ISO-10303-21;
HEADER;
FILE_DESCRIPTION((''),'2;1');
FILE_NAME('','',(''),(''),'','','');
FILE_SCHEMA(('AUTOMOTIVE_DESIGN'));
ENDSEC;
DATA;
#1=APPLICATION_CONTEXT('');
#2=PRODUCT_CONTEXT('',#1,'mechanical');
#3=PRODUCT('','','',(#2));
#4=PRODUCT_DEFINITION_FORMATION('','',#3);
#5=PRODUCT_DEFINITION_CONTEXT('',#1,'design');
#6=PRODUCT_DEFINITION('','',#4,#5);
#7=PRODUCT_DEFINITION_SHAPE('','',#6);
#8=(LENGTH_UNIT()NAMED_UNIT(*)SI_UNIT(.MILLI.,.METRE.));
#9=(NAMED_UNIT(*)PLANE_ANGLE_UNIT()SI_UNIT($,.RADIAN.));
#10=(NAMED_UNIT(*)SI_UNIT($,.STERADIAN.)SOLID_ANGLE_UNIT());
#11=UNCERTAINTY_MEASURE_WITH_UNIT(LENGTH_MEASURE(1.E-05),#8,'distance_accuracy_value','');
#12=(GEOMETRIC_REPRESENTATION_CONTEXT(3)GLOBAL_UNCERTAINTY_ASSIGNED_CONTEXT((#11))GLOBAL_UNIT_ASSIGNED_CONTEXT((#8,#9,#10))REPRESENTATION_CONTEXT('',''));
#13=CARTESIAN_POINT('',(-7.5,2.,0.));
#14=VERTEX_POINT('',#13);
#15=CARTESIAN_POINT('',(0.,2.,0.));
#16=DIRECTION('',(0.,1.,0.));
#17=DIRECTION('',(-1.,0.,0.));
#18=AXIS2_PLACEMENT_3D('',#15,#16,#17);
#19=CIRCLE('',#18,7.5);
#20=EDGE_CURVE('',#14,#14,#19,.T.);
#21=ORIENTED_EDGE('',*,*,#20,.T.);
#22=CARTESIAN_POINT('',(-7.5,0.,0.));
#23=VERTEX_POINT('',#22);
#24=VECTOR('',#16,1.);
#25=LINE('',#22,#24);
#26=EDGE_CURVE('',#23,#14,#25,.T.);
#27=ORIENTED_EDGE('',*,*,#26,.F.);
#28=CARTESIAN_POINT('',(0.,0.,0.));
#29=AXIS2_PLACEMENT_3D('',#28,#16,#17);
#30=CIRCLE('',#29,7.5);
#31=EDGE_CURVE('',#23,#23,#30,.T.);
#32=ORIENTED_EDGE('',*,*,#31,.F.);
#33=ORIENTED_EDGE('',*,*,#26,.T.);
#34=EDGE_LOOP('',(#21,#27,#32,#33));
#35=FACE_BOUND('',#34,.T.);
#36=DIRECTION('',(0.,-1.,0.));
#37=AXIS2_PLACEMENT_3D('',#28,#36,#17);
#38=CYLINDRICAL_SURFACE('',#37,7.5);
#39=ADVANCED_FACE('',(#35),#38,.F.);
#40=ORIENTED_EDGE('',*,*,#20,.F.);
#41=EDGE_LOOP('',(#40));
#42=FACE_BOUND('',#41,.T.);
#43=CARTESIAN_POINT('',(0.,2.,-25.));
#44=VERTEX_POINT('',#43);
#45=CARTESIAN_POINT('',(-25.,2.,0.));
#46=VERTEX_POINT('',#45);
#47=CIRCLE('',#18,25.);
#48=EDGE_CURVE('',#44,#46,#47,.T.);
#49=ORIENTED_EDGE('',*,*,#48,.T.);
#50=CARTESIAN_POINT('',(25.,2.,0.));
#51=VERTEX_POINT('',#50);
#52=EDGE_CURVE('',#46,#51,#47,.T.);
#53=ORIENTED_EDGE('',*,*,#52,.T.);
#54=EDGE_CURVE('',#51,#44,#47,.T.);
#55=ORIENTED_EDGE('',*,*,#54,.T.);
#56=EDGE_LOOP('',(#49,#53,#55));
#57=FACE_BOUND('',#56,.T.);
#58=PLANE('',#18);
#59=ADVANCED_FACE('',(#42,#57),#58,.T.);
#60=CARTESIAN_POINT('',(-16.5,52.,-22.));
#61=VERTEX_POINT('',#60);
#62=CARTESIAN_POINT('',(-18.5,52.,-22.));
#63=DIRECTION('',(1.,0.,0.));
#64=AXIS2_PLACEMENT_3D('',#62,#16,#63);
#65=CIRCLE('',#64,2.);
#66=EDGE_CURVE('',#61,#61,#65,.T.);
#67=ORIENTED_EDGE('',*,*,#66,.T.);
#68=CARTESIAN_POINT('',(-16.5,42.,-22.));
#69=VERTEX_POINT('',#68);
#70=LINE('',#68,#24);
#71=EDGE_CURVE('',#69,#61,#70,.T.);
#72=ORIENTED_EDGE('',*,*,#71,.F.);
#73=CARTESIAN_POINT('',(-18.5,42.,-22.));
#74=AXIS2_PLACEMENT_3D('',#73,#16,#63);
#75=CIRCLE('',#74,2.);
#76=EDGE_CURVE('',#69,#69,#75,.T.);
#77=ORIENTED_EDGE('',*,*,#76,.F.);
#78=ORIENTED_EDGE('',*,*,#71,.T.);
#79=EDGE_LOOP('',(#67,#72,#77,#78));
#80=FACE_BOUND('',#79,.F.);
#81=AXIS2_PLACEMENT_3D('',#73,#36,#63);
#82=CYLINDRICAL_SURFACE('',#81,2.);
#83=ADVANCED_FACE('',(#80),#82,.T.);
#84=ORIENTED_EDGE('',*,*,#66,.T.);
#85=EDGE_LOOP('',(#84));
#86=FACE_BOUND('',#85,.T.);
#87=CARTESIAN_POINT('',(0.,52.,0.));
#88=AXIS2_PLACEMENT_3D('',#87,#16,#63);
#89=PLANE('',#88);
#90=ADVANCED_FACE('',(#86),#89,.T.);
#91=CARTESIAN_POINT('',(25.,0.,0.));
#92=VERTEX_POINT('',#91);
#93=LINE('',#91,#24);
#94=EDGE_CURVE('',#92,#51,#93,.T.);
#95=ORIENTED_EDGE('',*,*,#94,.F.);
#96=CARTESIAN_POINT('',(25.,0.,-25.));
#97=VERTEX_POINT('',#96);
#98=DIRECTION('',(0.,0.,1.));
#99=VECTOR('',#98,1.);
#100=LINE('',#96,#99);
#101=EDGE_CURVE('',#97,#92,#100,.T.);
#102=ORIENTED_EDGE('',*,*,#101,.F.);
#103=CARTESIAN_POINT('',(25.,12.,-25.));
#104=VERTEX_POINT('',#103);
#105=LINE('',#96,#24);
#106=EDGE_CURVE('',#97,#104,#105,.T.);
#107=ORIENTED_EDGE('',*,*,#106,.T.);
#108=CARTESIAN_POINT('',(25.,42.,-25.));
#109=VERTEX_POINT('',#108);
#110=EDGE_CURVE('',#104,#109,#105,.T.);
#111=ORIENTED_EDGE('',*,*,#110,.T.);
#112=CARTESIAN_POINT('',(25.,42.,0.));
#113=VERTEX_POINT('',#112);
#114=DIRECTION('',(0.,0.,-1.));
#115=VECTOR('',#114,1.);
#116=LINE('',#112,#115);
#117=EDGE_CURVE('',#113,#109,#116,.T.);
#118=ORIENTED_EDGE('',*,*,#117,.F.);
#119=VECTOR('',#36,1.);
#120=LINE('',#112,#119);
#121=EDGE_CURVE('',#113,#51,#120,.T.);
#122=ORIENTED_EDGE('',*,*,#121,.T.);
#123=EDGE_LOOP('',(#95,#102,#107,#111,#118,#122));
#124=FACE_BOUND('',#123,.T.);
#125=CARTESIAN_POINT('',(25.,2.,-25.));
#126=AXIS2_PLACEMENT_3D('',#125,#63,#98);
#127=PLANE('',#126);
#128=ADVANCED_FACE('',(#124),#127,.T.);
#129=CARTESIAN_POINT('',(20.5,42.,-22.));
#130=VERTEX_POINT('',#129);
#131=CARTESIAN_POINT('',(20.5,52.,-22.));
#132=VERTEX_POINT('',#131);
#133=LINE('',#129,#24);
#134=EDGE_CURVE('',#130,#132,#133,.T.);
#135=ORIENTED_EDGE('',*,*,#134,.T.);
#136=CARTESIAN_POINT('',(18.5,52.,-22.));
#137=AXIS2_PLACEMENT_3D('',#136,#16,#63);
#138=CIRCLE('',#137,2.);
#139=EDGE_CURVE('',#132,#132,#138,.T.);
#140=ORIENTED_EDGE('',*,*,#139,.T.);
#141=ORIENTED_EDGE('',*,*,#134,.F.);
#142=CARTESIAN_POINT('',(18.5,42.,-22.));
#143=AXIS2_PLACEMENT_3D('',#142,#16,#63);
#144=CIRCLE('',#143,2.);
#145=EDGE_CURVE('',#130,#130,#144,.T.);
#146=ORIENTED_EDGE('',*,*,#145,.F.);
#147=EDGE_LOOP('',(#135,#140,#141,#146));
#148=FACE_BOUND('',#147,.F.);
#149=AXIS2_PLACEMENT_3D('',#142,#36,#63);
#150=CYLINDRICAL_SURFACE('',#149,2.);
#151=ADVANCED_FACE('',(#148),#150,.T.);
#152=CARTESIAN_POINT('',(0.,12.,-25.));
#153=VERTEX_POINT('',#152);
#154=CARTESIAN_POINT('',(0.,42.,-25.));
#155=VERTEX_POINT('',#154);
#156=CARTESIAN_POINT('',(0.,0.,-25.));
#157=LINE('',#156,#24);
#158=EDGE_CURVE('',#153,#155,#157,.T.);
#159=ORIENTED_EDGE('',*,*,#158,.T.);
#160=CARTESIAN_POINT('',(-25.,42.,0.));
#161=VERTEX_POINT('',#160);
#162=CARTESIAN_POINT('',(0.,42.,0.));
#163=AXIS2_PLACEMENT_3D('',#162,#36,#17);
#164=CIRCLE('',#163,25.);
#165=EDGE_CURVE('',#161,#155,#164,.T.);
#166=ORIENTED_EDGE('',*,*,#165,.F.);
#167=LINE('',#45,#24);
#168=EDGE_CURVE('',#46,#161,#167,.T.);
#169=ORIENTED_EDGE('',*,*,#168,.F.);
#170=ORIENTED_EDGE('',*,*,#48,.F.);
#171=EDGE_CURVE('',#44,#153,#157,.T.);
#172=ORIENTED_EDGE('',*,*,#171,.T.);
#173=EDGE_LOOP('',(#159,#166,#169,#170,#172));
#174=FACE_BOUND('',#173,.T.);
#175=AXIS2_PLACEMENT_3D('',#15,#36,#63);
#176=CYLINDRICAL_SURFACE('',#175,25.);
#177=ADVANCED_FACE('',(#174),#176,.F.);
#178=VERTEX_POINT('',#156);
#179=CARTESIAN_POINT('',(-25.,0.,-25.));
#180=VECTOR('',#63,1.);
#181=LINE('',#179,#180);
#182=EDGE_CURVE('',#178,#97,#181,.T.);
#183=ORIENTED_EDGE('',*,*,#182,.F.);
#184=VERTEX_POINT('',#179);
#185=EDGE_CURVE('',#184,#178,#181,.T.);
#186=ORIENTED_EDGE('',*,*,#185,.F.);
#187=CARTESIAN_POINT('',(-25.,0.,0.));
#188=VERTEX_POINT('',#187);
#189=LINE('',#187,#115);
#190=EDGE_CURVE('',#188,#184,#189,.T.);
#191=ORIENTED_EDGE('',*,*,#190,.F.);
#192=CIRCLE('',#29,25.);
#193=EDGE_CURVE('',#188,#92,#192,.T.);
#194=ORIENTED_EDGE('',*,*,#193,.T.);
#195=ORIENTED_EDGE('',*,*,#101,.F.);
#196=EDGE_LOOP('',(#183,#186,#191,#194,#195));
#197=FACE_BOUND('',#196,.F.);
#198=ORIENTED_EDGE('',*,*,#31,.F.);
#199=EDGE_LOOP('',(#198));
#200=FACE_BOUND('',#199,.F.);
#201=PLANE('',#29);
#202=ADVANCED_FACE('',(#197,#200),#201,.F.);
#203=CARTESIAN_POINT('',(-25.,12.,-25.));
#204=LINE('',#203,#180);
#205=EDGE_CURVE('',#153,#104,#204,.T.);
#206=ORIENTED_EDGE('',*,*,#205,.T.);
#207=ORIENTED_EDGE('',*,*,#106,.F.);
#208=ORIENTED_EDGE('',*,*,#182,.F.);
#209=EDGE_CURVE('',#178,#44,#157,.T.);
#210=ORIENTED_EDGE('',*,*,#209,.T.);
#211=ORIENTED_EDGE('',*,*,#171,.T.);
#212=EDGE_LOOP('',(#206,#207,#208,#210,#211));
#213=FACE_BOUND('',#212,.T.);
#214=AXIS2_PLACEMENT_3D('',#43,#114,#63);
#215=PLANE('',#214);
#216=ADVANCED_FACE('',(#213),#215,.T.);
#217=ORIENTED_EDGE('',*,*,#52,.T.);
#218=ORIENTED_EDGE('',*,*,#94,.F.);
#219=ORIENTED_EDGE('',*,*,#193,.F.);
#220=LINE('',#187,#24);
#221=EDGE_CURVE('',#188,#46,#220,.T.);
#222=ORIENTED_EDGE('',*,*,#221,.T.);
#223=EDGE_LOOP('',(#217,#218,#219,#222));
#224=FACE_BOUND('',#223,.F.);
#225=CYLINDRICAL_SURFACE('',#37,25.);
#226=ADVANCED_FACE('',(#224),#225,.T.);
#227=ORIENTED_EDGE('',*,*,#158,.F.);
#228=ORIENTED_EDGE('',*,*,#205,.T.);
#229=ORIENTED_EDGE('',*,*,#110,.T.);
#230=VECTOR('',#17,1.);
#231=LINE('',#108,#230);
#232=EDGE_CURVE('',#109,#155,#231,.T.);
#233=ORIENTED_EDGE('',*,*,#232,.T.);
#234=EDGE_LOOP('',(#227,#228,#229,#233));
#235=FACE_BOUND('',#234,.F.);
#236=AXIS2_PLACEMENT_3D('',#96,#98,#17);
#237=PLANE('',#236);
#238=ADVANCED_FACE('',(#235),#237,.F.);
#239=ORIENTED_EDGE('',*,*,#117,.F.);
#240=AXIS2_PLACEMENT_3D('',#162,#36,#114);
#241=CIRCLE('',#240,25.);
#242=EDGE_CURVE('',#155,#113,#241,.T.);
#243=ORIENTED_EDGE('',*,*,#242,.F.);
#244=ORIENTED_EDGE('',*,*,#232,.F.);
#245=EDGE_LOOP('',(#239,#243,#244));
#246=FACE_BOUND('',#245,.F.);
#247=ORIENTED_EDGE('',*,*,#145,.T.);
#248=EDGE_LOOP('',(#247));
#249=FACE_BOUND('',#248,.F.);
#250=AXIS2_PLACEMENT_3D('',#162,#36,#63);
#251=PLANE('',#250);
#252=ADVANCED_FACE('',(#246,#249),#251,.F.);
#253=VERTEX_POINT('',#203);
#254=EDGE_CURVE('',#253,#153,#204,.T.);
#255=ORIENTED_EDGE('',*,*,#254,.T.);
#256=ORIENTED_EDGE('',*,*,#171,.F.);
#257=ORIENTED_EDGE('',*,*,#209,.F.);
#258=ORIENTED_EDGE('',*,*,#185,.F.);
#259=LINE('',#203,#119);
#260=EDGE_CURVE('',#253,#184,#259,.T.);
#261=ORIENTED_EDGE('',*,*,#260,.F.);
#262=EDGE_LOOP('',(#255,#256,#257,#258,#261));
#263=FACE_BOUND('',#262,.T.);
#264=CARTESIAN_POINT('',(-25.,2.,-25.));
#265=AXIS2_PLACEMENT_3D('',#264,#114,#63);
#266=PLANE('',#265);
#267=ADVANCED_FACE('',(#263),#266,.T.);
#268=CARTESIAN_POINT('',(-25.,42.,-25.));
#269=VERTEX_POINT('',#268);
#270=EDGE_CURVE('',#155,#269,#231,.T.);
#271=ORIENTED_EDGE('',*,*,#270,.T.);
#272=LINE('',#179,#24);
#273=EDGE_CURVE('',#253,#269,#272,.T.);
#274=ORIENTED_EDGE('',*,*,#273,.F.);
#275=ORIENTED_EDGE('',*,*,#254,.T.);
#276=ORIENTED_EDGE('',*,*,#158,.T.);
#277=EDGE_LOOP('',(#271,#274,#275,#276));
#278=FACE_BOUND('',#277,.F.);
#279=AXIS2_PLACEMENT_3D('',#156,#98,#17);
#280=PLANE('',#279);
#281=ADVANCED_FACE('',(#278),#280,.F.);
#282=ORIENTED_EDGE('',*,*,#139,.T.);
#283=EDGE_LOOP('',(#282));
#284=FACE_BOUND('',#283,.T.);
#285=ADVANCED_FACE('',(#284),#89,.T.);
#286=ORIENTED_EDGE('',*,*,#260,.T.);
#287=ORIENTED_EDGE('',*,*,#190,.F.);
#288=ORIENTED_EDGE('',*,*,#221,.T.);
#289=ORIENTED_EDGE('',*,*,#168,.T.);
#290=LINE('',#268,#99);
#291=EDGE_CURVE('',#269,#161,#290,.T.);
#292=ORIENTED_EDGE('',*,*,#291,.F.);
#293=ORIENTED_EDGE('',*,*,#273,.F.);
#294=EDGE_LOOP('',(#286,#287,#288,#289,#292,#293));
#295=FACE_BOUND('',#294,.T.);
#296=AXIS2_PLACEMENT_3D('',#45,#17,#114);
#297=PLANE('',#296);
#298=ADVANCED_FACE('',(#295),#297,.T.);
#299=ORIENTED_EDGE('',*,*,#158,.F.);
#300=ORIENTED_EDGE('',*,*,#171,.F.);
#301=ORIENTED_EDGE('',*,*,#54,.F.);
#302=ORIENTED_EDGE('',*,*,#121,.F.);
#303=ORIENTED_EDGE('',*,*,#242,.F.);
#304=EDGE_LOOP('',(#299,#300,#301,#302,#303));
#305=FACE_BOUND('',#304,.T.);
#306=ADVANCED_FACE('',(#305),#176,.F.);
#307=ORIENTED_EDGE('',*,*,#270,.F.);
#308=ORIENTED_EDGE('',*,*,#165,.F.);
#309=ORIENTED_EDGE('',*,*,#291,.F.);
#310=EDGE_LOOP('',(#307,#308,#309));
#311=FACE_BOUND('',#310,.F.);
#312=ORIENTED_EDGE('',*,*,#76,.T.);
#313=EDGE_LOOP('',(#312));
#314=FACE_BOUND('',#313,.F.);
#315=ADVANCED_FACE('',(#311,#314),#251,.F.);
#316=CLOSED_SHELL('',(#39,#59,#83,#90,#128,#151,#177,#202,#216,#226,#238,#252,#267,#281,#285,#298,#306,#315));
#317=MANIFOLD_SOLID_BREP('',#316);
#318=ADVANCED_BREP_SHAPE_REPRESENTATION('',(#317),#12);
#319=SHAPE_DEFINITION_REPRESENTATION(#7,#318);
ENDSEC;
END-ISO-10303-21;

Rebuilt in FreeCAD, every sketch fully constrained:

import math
import FreeCAD as App
import Part
import Sketcher
Q = App.Units.Quantity

doc = App.newDocument("Part")
params = doc.addObject("Spreadsheet::Sheet", "Params")
for row, (alias, value) in enumerate([
    ("sketch1_diameter", "50 mm"),
    ("sketch1_diameter2", "15 mm"),
    ("pad1_length", "2 mm"),
    ("sketch2_radius", "25 mm"),
    ("pad2_length", "10 mm"),
    ("pad2_length2", "2 mm"),
    ("sketch3_diameter", "4 mm"),
    ("pad3_length", "40 mm"),
    ("sketch4_radius", "25 mm"),
    ("pad4_length", "42 mm"),
    ("sketch5_diameter", "4 mm"),
    ("pocket1_length", "10 mm"),
    ("sketch6_diameter", "4 mm"),
    ("pad5_length", "10 mm"),
], start=1):
    params.set(f"A{row}", alias)
    params.set(f"B{row}", "=" + value)
    params.setAlias(f"B{row}", alias)

body = doc.addObject("PartDesign::Body", "Body")

# Sketch on XZ plane
sketch1 = doc.addObject("Sketcher::SketchObject", "Sketch")
body.addObject(sketch1)
sketch1.AttachmentSupport = (doc.XZ_Plane, [""])
sketch1.MapMode = "FlatFace"
sketch1.addGeometry(Part.Circle(App.Vector(0, 0, 0), App.Vector(0, 0, 1), 25), False)
sketch1.addGeometry(Part.Circle(App.Vector(0, 0, 0), App.Vector(0, 0, 1), 7.5), False)
sketch1.addConstraint(Sketcher.Constraint("Coincident", 0, 3, -1, 1))
sketch1.addConstraint(Sketcher.Constraint("Coincident", 1, 3, -1, 1))
sketch1.addConstraint(Sketcher.Constraint("Diameter", 0, Q("50 mm")))
sketch1.addConstraint(Sketcher.Constraint("Diameter", 1, Q("15 mm")))
sketch1.setExpression("Constraints[2]", "Params.sketch1_diameter")
sketch1.setExpression("Constraints[3]", "Params.sketch1_diameter2")
pad1 = doc.addObject("PartDesign::Pad", "Pad")
body.addObject(pad1)
pad1.Profile = sketch1
pad1.setExpression("Length", "Params.pad1_length")
pad1.Reversed = True

# Sketch on XZ plane
sketch2 = doc.addObject("Sketcher::SketchObject", "Sketch001")
body.addObject(sketch2)
sketch2.AttachmentSupport = (doc.XZ_Plane, [""])
sketch2.MapMode = "FlatFace"
sketch2.AttachmentOffset = App.Placement(App.Vector(0, 0, -2), App.Rotation())
sketch2.addGeometry(Part.LineSegment(App.Vector(-25, -25, 0), App.Vector(-25, 0, 0)), False)
sketch2.addGeometry(Part.ArcOfCircle(Part.Circle(App.Vector(0, 0, 0), App.Vector(0, 0, 1), 25), math.radians(180), math.radians(270)), False)
sketch2.addGeometry(Part.LineSegment(App.Vector(0, -25, 0), App.Vector(-25, -25, 0)), False)
sketch2.addGeometry(Part.ArcOfCircle(Part.Circle(App.Vector(0, 0, 0), App.Vector(0, 0, 1), 25), math.radians(-90), math.radians(0)), False)
sketch2.addGeometry(Part.LineSegment(App.Vector(25, 0, 0), App.Vector(25, -25, 0)), False)
sketch2.addGeometry(Part.LineSegment(App.Vector(25, -25, 0), App.Vector(0, -25, 0)), False)
sketch2.addConstraint(Sketcher.Constraint("Tangent", 0, 2, 1, 1))
sketch2.addConstraint(Sketcher.Constraint("Tangent", 1, 2, 2, 1))
sketch2.addConstraint(Sketcher.Constraint("Coincident", 2, 2, 0, 1))
sketch2.addConstraint(Sketcher.Constraint("Tangent", 3, 2, 4, 1))
sketch2.addConstraint(Sketcher.Constraint("Coincident", 4, 2, 5, 1))
sketch2.addConstraint(Sketcher.Constraint("Tangent", 5, 2, 3, 1))
sketch2.addConstraint(Sketcher.Constraint("Vertical", 0))
sketch2.addConstraint(Sketcher.Constraint("Horizontal", 2))
sketch2.addConstraint(Sketcher.Constraint("Vertical", 4))
sketch2.addConstraint(Sketcher.Constraint("Horizontal", 5))
sketch2.addConstraint(Sketcher.Constraint("Coincident", 1, 3, -1, 1))
sketch2.addConstraint(Sketcher.Constraint("Coincident", 3, 3, -1, 1))
sketch2.addConstraint(Sketcher.Constraint("Equal", 1, 3))
sketch2.addConstraint(Sketcher.Constraint("Radius", 1, Q("25 mm")))
sketch2.setExpression("Constraints[13]", "Params.sketch2_radius")
pad2 = doc.addObject("PartDesign::Pad", "Pad001")
body.addObject(pad2)
pad2.Profile = sketch2
pad2.Type = "TwoLengths"
pad2.setExpression("Length", "Params.pad2_length")
pad2.setExpression("Length2", "Params.pad2_length2")
pad2.Reversed = True

# Sketch on XZ plane
sketch3 = doc.addObject("Sketcher::SketchObject", "Sketch002")
body.addObject(sketch3)
sketch3.AttachmentSupport = (doc.XZ_Plane, [""])
sketch3.MapMode = "FlatFace"
sketch3.AttachmentOffset = App.Placement(App.Vector(0, 0, -12), App.Rotation())
sketch3.addGeometry(Part.Circle(App.Vector(21.5, -18.5, 0), App.Vector(0, 0, 1), 2), False)
sketch3.addGeometry(Part.Circle(App.Vector(-21.5, -18.5, 0), App.Vector(0, 0, 1), 2), False)
sketch3.addConstraint(Sketcher.Constraint("Equal", 0, 1))
sketch3.addConstraint(Sketcher.Constraint("Symmetric", 0, 3, 1, 3, -2))
sketch3.addConstraint(Sketcher.Constraint("Diameter", 0, Q("4 mm")))
sketch3.addConstraint(Sketcher.Constraint("DistanceX", 1, 3, 0, 3, Q("43 mm")))
sketch3.addConstraint(Sketcher.Constraint("DistanceY", 0, 3, -1, 1, Q("18.5 mm")))
sketch3.setExpression("Constraints[2]", "Params.sketch3_diameter")
pad3 = doc.addObject("PartDesign::Pad", "Pad002")
body.addObject(pad3)
pad3.Profile = sketch3
pad3.setExpression("Length", "Params.pad3_length")
pad3.Reversed = True

# Sketch on XZ plane
sketch4 = doc.addObject("Sketcher::SketchObject", "Sketch003")
body.addObject(sketch4)
sketch4.AttachmentSupport = (doc.XZ_Plane, [""])
sketch4.MapMode = "FlatFace"
sketch4.addGeometry(Part.LineSegment(App.Vector(0, -25, 0), App.Vector(25, -25, 0)), False)
sketch4.addGeometry(Part.LineSegment(App.Vector(25, -25, 0), App.Vector(25, 0, 0)), False)
sketch4.addGeometry(Part.ArcOfCircle(Part.Circle(App.Vector(0, 0, 0), App.Vector(0, 0, 1), 25), math.radians(-90), math.radians(0)), False)
sketch4.addGeometry(Part.LineSegment(App.Vector(-25, -25, 0), App.Vector(0, -25, 0)), False)
sketch4.addGeometry(Part.ArcOfCircle(Part.Circle(App.Vector(0, 0, 0), App.Vector(0, 0, 1), 25), math.radians(180), math.radians(270)), False)
sketch4.addGeometry(Part.LineSegment(App.Vector(-25, 0, 0), App.Vector(-25, -25, 0)), False)
sketch4.addConstraint(Sketcher.Constraint("Coincident", 0, 2, 1, 1))
sketch4.addConstraint(Sketcher.Constraint("Tangent", 1, 2, 2, 2))
sketch4.addConstraint(Sketcher.Constraint("Tangent", 2, 1, 0, 1))
sketch4.addConstraint(Sketcher.Constraint("Tangent", 3, 2, 4, 2))
sketch4.addConstraint(Sketcher.Constraint("Tangent", 4, 1, 5, 1))
sketch4.addConstraint(Sketcher.Constraint("Coincident", 5, 2, 3, 1))
sketch4.addConstraint(Sketcher.Constraint("Horizontal", 0))
sketch4.addConstraint(Sketcher.Constraint("Vertical", 1))
sketch4.addConstraint(Sketcher.Constraint("Horizontal", 3))
sketch4.addConstraint(Sketcher.Constraint("Vertical", 5))
sketch4.addConstraint(Sketcher.Constraint("Coincident", 2, 3, -1, 1))
sketch4.addConstraint(Sketcher.Constraint("Coincident", 4, 3, -1, 1))
sketch4.addConstraint(Sketcher.Constraint("Equal", 2, 4))
sketch4.addConstraint(Sketcher.Constraint("Radius", 2, Q("25 mm")))
sketch4.setExpression("Constraints[13]", "Params.sketch4_radius")
pad4 = doc.addObject("PartDesign::Pad", "Pad003")
body.addObject(pad4)
pad4.Profile = sketch4
pad4.setExpression("Length", "Params.pad4_length")
pad4.Reversed = True

# Sketch on XZ plane
sketch5 = doc.addObject("Sketcher::SketchObject", "Sketch004")
body.addObject(sketch5)
sketch5.AttachmentSupport = (doc.XZ_Plane, [""])
sketch5.MapMode = "FlatFace"
sketch5.AttachmentOffset = App.Placement(App.Vector(0, 0, -52), App.Rotation())
sketch5.addGeometry(Part.Circle(App.Vector(21.5, -18.5, 0), App.Vector(0, 0, 1), 2), False)
sketch5.addGeometry(Part.Circle(App.Vector(-21.5, -18.5, 0), App.Vector(0, 0, 1), 2), False)
sketch5.addConstraint(Sketcher.Constraint("Equal", 0, 1))
sketch5.addConstraint(Sketcher.Constraint("Symmetric", 0, 3, 1, 3, -2))
sketch5.addConstraint(Sketcher.Constraint("Diameter", 0, Q("4 mm")))
sketch5.addConstraint(Sketcher.Constraint("DistanceX", 1, 3, 0, 3, Q("43 mm")))
sketch5.addConstraint(Sketcher.Constraint("DistanceY", 0, 3, -1, 1, Q("18.5 mm")))
sketch5.setExpression("Constraints[2]", "Params.sketch5_diameter")
pocket1 = doc.addObject("PartDesign::Pocket", "Pocket")
body.addObject(pocket1)
pocket1.Profile = sketch5
pocket1.setExpression("Length", "Params.pocket1_length")
pocket1.Reversed = True

# Sketch on XZ plane
sketch6 = doc.addObject("Sketcher::SketchObject", "Sketch005")
body.addObject(sketch6)
sketch6.AttachmentSupport = (doc.XZ_Plane, [""])
sketch6.MapMode = "FlatFace"
sketch6.AttachmentOffset = App.Placement(App.Vector(0, 0, -42), App.Rotation())
sketch6.addGeometry(Part.Circle(App.Vector(18.5, -22, 0), App.Vector(0, 0, 1), 2), False)
sketch6.addGeometry(Part.Circle(App.Vector(-18.5, -22, 0), App.Vector(0, 0, 1), 2), False)
sketch6.addConstraint(Sketcher.Constraint("Equal", 0, 1))
sketch6.addConstraint(Sketcher.Constraint("Symmetric", 0, 3, 1, 3, -2))
sketch6.addConstraint(Sketcher.Constraint("Diameter", 0, Q("4 mm")))
sketch6.addConstraint(Sketcher.Constraint("DistanceY", 0, 3, -1, 1, Q("22 mm")))
sketch6.addConstraint(Sketcher.Constraint("DistanceX", 1, 3, 0, 3, Q("37 mm")))
sketch6.setExpression("Constraints[2]", "Params.sketch6_diameter")
pad5 = doc.addObject("PartDesign::Pad", "Pad004")
body.addObject(pad5)
pad5.Profile = sketch6
pad5.setExpression("Length", "Params.pad5_length")
pad5.Reversed = True

doc.recompute()
